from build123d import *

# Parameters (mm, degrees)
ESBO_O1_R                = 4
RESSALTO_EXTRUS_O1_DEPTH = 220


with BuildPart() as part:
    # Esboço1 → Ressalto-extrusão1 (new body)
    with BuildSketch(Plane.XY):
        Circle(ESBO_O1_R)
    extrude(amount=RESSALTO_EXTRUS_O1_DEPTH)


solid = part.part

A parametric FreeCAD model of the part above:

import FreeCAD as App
import Part
import Sketcher
Q = App.Units.Quantity

doc = App.newDocument("Part")
body = doc.addObject("PartDesign::Body", "Body")

sketch1 = doc.addObject("Sketcher::SketchObject", "Sketch")
body.addObject(sketch1)
sketch1.AttachmentSupport = (doc.XY_Plane, [""])
sketch1.MapMode = "FlatFace"
sketch1.addGeometry(Part.Circle(App.Vector(0, 0, 0), App.Vector(0, 0, 1), 4), False)
sketch1.addConstraint([
    Sketcher.Constraint("Coincident", 0, 3, -1, 1),
    Sketcher.Constraint("Diameter", 0, Q("8 mm")),
])
pad1 = doc.addObject("PartDesign::Pad", "Pad")
body.addObject(pad1)
pad1.Profile = sketch1
pad1.Length = 220

doc.recompute()
